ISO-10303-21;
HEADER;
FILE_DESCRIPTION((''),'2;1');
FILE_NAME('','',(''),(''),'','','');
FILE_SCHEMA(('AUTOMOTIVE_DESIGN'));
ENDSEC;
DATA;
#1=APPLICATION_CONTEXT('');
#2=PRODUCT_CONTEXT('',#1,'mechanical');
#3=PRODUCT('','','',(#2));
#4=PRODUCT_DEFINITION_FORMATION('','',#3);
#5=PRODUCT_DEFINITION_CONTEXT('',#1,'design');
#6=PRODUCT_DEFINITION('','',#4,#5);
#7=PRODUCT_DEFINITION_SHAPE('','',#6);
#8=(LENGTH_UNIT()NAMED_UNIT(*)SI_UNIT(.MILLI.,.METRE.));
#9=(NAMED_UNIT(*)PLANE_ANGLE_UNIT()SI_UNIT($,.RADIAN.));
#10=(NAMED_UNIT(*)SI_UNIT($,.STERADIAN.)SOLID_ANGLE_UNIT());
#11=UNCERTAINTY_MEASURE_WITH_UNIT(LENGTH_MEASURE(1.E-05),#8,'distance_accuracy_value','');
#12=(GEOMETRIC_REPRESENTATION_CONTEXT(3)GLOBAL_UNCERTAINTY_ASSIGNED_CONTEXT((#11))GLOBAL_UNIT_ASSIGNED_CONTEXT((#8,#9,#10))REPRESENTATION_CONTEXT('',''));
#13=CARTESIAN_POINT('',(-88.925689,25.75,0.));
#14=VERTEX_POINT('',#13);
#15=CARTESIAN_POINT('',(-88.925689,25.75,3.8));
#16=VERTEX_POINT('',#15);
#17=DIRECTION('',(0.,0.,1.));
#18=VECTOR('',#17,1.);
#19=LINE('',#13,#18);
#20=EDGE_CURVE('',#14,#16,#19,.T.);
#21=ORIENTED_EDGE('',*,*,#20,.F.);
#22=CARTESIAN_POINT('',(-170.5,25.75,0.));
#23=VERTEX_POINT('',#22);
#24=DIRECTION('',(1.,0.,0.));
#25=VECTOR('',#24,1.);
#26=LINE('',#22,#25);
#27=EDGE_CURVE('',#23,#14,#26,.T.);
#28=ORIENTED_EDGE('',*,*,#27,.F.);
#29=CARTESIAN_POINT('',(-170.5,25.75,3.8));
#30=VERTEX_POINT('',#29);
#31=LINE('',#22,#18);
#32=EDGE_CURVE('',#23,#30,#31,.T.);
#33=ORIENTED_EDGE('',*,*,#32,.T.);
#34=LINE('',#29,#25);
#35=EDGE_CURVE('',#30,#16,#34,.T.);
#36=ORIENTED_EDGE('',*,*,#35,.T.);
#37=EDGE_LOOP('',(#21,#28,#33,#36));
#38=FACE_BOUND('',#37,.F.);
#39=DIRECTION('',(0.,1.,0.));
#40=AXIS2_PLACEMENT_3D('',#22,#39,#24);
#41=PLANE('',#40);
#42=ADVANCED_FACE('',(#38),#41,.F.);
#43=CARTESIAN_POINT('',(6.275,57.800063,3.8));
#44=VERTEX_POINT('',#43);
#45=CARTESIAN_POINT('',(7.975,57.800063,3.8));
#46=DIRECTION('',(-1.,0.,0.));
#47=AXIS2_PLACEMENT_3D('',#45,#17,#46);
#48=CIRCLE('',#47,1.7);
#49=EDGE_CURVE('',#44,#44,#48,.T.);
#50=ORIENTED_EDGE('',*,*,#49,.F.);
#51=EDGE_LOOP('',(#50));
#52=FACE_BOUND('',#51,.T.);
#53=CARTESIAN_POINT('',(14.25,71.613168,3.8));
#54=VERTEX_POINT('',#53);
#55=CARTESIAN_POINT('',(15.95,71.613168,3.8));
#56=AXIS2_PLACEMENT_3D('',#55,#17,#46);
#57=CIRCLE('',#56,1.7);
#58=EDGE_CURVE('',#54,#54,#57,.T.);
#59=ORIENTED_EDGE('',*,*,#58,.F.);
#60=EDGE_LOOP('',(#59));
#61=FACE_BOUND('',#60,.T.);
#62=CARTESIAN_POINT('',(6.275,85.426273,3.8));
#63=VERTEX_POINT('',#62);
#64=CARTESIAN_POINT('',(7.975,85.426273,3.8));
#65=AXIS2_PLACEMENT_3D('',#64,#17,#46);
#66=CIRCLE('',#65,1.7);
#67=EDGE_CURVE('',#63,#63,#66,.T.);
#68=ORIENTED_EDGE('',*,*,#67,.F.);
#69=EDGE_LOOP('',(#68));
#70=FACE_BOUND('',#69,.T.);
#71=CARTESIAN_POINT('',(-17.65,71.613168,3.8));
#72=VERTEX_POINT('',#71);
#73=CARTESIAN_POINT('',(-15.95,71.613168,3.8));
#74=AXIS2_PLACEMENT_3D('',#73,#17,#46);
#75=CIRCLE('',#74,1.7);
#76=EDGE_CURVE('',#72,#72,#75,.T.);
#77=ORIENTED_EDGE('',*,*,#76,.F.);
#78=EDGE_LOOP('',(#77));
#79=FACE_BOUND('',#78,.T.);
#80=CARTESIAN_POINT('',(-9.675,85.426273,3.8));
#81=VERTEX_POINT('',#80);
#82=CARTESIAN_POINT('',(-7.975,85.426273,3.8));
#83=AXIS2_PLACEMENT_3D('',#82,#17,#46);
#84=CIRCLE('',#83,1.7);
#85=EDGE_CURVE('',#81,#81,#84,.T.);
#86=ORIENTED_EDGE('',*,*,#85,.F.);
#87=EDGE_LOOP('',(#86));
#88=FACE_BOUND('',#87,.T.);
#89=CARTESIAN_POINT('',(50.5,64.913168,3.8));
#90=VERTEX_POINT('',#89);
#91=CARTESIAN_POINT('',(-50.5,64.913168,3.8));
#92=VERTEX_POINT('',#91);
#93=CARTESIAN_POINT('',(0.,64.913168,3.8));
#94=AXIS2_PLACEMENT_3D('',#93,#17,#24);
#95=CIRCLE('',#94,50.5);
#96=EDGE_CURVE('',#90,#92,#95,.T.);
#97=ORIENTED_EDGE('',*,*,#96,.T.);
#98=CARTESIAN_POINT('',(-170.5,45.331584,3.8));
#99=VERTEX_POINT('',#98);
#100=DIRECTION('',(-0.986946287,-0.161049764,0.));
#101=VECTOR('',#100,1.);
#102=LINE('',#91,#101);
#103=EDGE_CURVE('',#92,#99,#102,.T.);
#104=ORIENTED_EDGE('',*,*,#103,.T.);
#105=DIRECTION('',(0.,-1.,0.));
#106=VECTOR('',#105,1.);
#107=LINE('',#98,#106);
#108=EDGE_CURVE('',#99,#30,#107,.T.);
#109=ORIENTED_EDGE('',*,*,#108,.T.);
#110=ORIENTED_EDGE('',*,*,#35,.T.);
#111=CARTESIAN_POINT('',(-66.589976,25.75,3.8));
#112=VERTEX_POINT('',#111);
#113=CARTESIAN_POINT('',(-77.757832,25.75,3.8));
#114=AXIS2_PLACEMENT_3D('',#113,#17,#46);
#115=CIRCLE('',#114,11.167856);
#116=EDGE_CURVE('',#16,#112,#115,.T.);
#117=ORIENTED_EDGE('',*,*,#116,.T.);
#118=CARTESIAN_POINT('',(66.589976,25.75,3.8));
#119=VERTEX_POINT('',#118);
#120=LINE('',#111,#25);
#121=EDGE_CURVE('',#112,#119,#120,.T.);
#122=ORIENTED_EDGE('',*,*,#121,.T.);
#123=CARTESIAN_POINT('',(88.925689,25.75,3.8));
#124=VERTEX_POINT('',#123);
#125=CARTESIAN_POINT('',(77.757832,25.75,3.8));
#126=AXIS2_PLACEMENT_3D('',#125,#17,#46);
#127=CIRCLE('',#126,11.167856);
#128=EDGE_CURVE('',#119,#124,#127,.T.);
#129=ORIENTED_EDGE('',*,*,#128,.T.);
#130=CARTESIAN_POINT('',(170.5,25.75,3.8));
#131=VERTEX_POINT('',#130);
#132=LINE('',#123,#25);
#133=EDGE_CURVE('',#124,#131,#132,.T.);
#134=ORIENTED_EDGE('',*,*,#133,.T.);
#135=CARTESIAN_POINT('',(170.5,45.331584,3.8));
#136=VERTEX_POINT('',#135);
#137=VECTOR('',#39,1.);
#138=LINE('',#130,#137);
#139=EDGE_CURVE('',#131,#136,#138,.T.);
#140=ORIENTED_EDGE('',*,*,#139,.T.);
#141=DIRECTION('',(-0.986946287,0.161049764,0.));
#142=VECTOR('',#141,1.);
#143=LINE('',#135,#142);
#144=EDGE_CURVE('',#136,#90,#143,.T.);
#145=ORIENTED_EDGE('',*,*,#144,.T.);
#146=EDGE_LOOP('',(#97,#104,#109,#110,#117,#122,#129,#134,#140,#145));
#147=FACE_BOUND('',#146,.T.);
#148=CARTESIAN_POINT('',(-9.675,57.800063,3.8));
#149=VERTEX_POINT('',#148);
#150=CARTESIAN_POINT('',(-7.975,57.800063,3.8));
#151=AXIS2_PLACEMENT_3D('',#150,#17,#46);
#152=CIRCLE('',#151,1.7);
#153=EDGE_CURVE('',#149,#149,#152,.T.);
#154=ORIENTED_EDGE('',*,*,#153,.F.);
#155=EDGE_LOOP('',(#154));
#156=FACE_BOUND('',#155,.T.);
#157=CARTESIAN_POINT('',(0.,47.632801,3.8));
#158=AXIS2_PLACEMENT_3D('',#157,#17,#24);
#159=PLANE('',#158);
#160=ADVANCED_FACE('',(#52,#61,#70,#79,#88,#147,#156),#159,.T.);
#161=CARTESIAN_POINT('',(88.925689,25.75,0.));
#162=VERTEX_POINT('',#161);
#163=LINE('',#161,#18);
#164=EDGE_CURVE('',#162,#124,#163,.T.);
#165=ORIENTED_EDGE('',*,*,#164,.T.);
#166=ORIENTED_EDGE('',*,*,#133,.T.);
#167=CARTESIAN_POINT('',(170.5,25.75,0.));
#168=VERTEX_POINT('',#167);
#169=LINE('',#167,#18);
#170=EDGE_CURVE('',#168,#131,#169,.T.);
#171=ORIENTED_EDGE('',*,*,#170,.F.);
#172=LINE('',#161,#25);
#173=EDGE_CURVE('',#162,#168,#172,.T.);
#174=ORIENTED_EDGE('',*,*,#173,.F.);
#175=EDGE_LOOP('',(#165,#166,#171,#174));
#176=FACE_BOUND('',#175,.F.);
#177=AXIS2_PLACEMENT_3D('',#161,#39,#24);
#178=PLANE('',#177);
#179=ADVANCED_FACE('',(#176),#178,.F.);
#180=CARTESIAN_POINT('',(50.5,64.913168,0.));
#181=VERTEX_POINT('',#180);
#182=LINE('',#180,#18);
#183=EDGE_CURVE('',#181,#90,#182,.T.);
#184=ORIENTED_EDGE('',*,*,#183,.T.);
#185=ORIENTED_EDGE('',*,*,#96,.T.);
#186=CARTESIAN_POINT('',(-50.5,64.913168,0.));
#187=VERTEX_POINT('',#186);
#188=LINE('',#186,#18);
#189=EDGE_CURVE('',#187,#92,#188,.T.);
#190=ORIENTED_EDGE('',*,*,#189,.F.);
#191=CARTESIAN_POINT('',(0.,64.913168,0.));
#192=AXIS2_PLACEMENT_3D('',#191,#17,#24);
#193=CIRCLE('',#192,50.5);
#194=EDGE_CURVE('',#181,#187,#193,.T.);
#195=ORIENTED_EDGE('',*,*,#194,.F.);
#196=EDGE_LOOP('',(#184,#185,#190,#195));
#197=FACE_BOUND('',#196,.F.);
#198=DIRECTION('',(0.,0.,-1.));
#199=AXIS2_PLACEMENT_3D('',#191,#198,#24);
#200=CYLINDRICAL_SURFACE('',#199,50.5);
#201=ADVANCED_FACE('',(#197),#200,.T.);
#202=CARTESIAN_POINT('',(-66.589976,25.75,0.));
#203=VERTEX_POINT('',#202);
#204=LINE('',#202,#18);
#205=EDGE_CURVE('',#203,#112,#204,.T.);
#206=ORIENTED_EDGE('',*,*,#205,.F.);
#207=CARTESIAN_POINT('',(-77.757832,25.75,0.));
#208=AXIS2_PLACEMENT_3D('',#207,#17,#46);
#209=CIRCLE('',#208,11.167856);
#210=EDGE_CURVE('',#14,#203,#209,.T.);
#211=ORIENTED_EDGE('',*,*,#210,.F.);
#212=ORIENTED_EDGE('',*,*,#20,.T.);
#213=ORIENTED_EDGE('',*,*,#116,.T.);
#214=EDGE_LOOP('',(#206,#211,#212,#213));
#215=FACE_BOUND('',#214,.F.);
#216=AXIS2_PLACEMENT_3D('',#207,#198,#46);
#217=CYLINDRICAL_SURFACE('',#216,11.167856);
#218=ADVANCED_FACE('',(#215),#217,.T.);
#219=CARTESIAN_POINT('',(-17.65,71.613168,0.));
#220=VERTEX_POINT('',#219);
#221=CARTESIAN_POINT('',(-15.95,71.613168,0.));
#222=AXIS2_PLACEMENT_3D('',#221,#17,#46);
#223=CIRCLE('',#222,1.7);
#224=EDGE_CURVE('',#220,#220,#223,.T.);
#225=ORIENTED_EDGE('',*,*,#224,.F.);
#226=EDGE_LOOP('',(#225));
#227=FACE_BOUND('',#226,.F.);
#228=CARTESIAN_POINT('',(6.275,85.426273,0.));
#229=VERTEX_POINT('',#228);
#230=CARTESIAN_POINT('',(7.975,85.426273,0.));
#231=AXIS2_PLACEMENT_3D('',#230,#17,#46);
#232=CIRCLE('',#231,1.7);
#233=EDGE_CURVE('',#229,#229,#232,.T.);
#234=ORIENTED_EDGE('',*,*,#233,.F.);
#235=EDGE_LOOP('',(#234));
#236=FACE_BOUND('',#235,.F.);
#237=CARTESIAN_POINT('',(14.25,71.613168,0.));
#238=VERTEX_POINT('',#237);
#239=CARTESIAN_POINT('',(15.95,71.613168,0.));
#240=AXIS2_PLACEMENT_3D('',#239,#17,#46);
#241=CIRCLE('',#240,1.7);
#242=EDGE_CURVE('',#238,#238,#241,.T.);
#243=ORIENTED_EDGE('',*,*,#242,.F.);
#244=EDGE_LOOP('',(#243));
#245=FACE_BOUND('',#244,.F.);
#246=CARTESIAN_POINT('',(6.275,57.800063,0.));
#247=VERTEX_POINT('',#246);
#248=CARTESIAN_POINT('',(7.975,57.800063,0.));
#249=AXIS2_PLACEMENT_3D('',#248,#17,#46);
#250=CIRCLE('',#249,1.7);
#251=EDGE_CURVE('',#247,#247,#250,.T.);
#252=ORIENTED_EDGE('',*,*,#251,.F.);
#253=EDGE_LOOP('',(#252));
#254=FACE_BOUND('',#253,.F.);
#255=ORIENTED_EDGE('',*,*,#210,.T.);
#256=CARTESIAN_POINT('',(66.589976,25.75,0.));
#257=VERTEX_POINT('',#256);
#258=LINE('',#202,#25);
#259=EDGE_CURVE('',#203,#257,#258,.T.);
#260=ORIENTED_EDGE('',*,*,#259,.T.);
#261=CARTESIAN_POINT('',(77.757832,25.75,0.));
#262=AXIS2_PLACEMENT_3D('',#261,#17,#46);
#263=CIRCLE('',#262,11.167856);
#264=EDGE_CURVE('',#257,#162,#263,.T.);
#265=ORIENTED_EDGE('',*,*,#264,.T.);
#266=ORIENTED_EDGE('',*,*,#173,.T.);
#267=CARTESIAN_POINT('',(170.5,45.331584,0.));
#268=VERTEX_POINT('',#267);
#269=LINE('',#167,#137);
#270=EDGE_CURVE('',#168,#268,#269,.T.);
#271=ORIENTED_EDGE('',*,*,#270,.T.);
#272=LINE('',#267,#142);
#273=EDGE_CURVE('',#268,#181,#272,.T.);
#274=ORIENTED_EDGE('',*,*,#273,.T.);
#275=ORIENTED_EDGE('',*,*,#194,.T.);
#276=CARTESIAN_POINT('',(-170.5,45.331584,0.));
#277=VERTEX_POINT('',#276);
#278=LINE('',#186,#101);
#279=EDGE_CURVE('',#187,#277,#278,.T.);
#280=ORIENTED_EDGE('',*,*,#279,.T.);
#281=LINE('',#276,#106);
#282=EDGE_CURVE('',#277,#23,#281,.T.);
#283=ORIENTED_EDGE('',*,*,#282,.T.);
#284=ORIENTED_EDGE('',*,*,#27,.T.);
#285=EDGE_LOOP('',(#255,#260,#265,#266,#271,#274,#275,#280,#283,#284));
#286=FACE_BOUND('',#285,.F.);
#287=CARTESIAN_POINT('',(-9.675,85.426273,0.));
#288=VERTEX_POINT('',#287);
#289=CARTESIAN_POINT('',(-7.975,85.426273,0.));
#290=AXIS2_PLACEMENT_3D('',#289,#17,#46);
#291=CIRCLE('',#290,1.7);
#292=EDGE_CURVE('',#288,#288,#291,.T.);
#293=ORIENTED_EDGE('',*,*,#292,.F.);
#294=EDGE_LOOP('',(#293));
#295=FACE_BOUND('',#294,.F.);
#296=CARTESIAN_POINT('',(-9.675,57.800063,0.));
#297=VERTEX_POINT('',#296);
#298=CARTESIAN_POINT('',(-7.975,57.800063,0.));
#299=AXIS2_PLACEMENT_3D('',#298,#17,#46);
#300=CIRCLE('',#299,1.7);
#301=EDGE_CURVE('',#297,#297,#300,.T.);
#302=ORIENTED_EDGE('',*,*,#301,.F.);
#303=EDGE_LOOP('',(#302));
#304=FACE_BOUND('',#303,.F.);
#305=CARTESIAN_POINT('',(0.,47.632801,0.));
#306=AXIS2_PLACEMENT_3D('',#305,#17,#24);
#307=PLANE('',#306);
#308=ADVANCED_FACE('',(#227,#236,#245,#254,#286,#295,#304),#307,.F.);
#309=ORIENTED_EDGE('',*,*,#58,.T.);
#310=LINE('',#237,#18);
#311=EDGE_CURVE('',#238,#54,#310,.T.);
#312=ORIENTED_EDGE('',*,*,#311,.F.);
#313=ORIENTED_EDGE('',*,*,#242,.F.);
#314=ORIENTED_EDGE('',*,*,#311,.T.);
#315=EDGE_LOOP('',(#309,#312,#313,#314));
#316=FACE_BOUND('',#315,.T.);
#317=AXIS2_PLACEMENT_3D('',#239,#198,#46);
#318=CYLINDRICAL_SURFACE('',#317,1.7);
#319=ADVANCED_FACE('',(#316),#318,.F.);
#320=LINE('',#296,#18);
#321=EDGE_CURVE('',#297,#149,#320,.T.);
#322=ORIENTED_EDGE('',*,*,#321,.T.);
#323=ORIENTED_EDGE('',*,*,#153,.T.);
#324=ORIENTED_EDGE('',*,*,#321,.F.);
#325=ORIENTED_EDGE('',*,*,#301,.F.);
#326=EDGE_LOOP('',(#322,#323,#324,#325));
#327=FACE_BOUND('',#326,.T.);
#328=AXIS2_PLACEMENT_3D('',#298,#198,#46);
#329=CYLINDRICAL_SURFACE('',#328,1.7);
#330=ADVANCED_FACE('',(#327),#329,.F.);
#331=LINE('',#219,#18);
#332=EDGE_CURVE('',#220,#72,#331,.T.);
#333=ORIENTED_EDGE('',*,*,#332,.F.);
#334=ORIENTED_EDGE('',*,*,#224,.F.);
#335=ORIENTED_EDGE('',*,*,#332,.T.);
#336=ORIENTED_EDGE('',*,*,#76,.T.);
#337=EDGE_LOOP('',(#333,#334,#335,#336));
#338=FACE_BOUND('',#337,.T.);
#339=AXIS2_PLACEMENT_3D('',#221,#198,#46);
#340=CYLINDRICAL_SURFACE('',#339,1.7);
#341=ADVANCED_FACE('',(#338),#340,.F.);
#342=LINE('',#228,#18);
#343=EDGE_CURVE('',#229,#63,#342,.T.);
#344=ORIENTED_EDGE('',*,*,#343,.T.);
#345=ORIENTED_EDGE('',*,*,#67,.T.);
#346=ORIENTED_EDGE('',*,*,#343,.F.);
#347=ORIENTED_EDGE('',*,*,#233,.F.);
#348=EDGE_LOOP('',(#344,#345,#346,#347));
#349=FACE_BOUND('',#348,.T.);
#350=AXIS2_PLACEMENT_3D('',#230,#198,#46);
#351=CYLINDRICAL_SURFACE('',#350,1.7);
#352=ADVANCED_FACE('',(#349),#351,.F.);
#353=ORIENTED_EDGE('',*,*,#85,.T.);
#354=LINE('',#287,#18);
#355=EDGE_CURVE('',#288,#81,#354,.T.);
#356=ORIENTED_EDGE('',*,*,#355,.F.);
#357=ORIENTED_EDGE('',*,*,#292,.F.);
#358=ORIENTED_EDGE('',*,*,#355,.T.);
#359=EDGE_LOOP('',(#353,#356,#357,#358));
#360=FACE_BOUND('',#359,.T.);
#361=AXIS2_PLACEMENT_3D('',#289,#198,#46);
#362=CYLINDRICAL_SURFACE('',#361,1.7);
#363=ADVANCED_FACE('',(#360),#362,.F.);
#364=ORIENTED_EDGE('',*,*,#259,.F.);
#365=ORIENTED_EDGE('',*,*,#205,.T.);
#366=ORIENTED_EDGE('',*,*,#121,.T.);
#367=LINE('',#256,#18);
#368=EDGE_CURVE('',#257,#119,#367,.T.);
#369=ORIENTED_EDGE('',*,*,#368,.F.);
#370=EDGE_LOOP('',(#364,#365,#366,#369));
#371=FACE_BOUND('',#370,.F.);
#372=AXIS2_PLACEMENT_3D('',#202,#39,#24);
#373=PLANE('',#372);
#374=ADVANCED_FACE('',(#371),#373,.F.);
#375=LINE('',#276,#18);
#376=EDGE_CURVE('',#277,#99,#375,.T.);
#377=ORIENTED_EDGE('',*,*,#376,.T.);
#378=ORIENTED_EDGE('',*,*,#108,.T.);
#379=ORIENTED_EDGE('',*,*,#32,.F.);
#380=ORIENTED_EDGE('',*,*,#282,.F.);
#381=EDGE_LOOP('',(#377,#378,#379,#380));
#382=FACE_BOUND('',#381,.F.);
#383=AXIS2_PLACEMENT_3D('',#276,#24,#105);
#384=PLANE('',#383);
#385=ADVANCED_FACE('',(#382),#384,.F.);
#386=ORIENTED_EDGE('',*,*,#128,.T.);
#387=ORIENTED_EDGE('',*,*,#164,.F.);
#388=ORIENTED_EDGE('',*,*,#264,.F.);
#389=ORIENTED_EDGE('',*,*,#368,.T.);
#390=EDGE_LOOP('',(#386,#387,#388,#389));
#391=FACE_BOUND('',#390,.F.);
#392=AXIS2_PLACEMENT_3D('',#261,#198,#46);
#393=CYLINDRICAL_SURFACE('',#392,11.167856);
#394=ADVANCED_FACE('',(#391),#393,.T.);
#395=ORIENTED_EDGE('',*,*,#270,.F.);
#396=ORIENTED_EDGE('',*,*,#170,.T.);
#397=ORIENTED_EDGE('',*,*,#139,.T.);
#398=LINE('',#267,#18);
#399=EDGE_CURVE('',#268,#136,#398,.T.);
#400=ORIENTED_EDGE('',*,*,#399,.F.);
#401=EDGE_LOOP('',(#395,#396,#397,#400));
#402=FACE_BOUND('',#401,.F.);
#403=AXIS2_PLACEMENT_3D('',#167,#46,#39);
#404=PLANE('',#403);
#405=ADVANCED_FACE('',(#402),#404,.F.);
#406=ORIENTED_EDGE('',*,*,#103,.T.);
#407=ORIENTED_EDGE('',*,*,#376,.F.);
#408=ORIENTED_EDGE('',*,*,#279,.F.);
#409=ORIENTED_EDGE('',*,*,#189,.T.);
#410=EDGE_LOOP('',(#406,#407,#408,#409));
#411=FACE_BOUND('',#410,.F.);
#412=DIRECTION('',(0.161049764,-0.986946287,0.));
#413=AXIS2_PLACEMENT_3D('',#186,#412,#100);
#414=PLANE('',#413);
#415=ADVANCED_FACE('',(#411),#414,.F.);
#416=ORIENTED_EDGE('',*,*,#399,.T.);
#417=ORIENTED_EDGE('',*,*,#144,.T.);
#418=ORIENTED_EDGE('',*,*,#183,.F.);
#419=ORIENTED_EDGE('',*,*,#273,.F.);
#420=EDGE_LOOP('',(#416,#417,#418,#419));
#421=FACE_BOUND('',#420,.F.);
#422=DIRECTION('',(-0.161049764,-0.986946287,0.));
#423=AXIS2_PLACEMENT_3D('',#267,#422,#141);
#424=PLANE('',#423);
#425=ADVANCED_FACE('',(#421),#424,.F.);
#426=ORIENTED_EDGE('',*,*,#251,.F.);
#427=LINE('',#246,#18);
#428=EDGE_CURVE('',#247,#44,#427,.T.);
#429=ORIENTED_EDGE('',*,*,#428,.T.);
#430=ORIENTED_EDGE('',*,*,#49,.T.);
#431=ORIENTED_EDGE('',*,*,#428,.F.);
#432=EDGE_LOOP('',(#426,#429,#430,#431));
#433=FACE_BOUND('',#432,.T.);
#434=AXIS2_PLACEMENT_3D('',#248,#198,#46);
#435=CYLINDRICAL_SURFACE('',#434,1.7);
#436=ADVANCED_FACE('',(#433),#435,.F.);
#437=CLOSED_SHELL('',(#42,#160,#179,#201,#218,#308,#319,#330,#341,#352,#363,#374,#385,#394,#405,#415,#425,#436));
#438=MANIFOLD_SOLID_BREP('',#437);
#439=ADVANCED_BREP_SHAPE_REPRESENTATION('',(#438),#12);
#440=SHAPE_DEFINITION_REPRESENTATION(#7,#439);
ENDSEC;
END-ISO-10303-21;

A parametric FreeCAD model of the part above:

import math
import FreeCAD as App
import Part
import Sketcher
from FreeCAD import Vector
Q = App.Units.Quantity

doc = App.newDocument("Part")
body = doc.addObject("PartDesign::Body", "Body")

# Sketch on XY plane
sketch1 = doc.addObject("Sketcher::SketchObject", "Sketch")
body.addObject(sketch1)
sketch1.AttachmentSupport = (doc.XY_Plane, [""])
sketch1.MapMode = "FlatFace"
sketch1.addGeometry(Part.LineSegment(Vector(-170.5, 25.75, 0), Vector(-88.925689, 25.75, 0)), False)
sketch1.addGeometry(Part.ArcOfCircle(Part.Circle(Vector(-77.757832, 25.75, 0), Vector(0, 0, 1), 11.167856), math.radians(180), math.radians(360)), False)
sketch1.addGeometry(Part.LineSegment(Vector(-66.589976, 25.75, 0), Vector(66.589976, 25.75, 0)), False)
sketch1.addGeometry(Part.ArcOfCircle(Part.Circle(Vector(77.757832, 25.75, 0), Vector(0, 0, 1), 11.167856), math.radians(180), math.radians(360)), False)
sketch1.addGeometry(Part.LineSegment(Vector(88.925689, 25.75, 0), Vector(170.5, 25.75, 0)), False)
sketch1.addGeometry(Part.LineSegment(Vector(170.5, 25.75, 0), Vector(170.5, 45.331584, 0)), False)
sketch1.addGeometry(Part.LineSegment(Vector(170.5, 45.331584, 0), Vector(50.5, 64.913168, 0)), False)
sketch1.addGeometry(Part.ArcOfCircle(Part.Circle(Vector(0, 64.913168, 0), Vector(0, 0, 1), 50.5), math.radians(0), math.radians(180)), False)
sketch1.addGeometry(Part.LineSegment(Vector(-50.5, 64.913168, 0), Vector(-170.5, 45.331584, 0)), False)
sketch1.addGeometry(Part.LineSegment(Vector(-170.5, 45.331584, 0), Vector(-170.5, 25.75, 0)), False)
sketch1.addGeometry(Part.Circle(Vector(-7.975, 57.800063, 0), Vector(0, 0, 1), 1.7), False)
sketch1.addGeometry(Part.Circle(Vector(-15.95, 71.613168, 0), Vector(0, 0, 1), 1.7), False)
sketch1.addGeometry(Part.Circle(Vector(7.975, 57.800063, 0), Vector(0, 0, 1), 1.7), False)
sketch1.addGeometry(Part.Circle(Vector(15.95, 71.613168, 0), Vector(0, 0, 1), 1.7), False)
sketch1.addGeometry(Part.Circle(Vector(-7.975, 85.426273, 0), Vector(0, 0, 1), 1.7), False)
sketch1.addGeometry(Part.Circle(Vector(7.975, 85.426273, 0), Vector(0, 0, 1), 1.7), False)
sketch1.addConstraint(Sketcher.Constraint("Coincident", 0, 2, 1, 1))
sketch1.addConstraint(Sketcher.Constraint("Coincident", 1, 2, 2, 1))
sketch1.addConstraint(Sketcher.Constraint("Coincident", 2, 2, 3, 1))
sketch1.addConstraint(Sketcher.Constraint("Coincident", 3, 2, 4, 1))
sketch1.addConstraint(Sketcher.Constraint("Coincident", 4, 2, 5, 1))
sketch1.addConstraint(Sketcher.Constraint("Coincident", 5, 2, 6, 1))
sketch1.addConstraint(Sketcher.Constraint("Coincident", 6, 2, 7, 1))
sketch1.addConstraint(Sketcher.Constraint("Coincident", 7, 2, 8, 1))
sketch1.addConstraint(Sketcher.Constraint("Coincident", 8, 2, 9, 1))
sketch1.addConstraint(Sketcher.Constraint("Coincident", 9, 2, 0, 1))
sketch1.addConstraint(Sketcher.Constraint("Horizontal", 0))
sketch1.addConstraint(Sketcher.Constraint("Horizontal", 2))
sketch1.addConstraint(Sketcher.Constraint("Horizontal", 4))
sketch1.addConstraint(Sketcher.Constraint("Vertical", 5))
sketch1.addConstraint(Sketcher.Constraint("Vertical", 9))
sketch1.addConstraint(Sketcher.Constraint("Equal", 1, 3))
sketch1.addConstraint(Sketcher.Constraint("Equal", 10, 11))
sketch1.addConstraint(Sketcher.Constraint("Equal", 11, 12))
sketch1.addConstraint(Sketcher.Constraint("Equal", 12, 13))
sketch1.addConstraint(Sketcher.Constraint("Equal", 13, 14))
sketch1.addConstraint(Sketcher.Constraint("Equal", 14, 15))
sketch1.addConstraint(Sketcher.Constraint("Symmetric", 1, 3, 3, 3, -2))
sketch1.addConstraint(Sketcher.Constraint("Symmetric", 10, 3, 12, 3, -2))
sketch1.addConstraint(Sketcher.Constraint("Symmetric", 11, 3, 13, 3, -2))
sketch1.addConstraint(Sketcher.Constraint("Symmetric", 14, 3, 15, 3, -2))
sketch1.addConstraint(Sketcher.Constraint("Symmetric", 6, 2, 7, 2, -2))
sketch1.addConstraint(Sketcher.Constraint("Symmetric", 5, 2, 8, 2, -2))
sketch1.addConstraint(Sketcher.Constraint("Horizontal", 3, 3, 0, 2))
sketch1.addConstraint(Sketcher.Constraint("Horizontal", 0, 2, 1, 2))
sketch1.addConstraint(Sketcher.Constraint("Horizontal", 2, 2, 3, 2))
sketch1.addConstraint(Sketcher.Constraint("Horizontal", 7, 3, 6, 2))
sketch1.addConstraint(Sketcher.Constraint("Vertical", 10, 3, 14, 3))
sketch1.addConstraint(Sketcher.Constraint("Diameter", 10, Q("3.4 mm")))
sketch1.addConstraint(Sketcher.Constraint("Radius", 7, Q("50.5 mm")))
sketch1.addConstraint(Sketcher.Constraint("DistanceX", 8, 2, 7, 2, Q("120 mm")))
sketch1.addConstraint(Sketcher.Constraint("DistanceY", 7, 3, 11, 3, Q("6.7 mm")))
sketch1.addConstraint(Sketcher.Constraint("DistanceX", 11, 3, 13, 3, Q("31.9 mm")))
sketch1.addConstraint(Sketcher.Constraint("DistanceY", -1, 1, 1, 3, Q("25.75 mm")))
sketch1.addConstraint(Sketcher.Constraint("DistanceX", 10, 3, 12, 3, Q("15.95 mm")))
sketch1.addConstraint(Sketcher.Constraint("Radius", 1, Q("11.167856 mm")))
sketch1.addConstraint(Sketcher.Constraint("DistanceX", 0, 1, 0, 2, Q("81.574311 mm")))
sketch1.addConstraint(Sketcher.Constraint("DistanceY", 5, 1, 5, 2, Q("19.581584 mm")))
sketch1.addConstraint(Sketcher.Constraint("DistanceY", -1, 1, 7, 3, Q("64.913168 mm")))
sketch1.addConstraint(Sketcher.Constraint("DistanceY", 10, 3, 14, 3, Q("27.62621 mm")))
sketch1.addConstraint(Sketcher.Constraint("DistanceY", -1, 1, 10, 3, Q("57.800063 mm")))
pad1 = doc.addObject("PartDesign::Pad", "Pad")
body.addObject(pad1)
pad1.Profile = sketch1
pad1.Length = 3.8

doc.recompute()
